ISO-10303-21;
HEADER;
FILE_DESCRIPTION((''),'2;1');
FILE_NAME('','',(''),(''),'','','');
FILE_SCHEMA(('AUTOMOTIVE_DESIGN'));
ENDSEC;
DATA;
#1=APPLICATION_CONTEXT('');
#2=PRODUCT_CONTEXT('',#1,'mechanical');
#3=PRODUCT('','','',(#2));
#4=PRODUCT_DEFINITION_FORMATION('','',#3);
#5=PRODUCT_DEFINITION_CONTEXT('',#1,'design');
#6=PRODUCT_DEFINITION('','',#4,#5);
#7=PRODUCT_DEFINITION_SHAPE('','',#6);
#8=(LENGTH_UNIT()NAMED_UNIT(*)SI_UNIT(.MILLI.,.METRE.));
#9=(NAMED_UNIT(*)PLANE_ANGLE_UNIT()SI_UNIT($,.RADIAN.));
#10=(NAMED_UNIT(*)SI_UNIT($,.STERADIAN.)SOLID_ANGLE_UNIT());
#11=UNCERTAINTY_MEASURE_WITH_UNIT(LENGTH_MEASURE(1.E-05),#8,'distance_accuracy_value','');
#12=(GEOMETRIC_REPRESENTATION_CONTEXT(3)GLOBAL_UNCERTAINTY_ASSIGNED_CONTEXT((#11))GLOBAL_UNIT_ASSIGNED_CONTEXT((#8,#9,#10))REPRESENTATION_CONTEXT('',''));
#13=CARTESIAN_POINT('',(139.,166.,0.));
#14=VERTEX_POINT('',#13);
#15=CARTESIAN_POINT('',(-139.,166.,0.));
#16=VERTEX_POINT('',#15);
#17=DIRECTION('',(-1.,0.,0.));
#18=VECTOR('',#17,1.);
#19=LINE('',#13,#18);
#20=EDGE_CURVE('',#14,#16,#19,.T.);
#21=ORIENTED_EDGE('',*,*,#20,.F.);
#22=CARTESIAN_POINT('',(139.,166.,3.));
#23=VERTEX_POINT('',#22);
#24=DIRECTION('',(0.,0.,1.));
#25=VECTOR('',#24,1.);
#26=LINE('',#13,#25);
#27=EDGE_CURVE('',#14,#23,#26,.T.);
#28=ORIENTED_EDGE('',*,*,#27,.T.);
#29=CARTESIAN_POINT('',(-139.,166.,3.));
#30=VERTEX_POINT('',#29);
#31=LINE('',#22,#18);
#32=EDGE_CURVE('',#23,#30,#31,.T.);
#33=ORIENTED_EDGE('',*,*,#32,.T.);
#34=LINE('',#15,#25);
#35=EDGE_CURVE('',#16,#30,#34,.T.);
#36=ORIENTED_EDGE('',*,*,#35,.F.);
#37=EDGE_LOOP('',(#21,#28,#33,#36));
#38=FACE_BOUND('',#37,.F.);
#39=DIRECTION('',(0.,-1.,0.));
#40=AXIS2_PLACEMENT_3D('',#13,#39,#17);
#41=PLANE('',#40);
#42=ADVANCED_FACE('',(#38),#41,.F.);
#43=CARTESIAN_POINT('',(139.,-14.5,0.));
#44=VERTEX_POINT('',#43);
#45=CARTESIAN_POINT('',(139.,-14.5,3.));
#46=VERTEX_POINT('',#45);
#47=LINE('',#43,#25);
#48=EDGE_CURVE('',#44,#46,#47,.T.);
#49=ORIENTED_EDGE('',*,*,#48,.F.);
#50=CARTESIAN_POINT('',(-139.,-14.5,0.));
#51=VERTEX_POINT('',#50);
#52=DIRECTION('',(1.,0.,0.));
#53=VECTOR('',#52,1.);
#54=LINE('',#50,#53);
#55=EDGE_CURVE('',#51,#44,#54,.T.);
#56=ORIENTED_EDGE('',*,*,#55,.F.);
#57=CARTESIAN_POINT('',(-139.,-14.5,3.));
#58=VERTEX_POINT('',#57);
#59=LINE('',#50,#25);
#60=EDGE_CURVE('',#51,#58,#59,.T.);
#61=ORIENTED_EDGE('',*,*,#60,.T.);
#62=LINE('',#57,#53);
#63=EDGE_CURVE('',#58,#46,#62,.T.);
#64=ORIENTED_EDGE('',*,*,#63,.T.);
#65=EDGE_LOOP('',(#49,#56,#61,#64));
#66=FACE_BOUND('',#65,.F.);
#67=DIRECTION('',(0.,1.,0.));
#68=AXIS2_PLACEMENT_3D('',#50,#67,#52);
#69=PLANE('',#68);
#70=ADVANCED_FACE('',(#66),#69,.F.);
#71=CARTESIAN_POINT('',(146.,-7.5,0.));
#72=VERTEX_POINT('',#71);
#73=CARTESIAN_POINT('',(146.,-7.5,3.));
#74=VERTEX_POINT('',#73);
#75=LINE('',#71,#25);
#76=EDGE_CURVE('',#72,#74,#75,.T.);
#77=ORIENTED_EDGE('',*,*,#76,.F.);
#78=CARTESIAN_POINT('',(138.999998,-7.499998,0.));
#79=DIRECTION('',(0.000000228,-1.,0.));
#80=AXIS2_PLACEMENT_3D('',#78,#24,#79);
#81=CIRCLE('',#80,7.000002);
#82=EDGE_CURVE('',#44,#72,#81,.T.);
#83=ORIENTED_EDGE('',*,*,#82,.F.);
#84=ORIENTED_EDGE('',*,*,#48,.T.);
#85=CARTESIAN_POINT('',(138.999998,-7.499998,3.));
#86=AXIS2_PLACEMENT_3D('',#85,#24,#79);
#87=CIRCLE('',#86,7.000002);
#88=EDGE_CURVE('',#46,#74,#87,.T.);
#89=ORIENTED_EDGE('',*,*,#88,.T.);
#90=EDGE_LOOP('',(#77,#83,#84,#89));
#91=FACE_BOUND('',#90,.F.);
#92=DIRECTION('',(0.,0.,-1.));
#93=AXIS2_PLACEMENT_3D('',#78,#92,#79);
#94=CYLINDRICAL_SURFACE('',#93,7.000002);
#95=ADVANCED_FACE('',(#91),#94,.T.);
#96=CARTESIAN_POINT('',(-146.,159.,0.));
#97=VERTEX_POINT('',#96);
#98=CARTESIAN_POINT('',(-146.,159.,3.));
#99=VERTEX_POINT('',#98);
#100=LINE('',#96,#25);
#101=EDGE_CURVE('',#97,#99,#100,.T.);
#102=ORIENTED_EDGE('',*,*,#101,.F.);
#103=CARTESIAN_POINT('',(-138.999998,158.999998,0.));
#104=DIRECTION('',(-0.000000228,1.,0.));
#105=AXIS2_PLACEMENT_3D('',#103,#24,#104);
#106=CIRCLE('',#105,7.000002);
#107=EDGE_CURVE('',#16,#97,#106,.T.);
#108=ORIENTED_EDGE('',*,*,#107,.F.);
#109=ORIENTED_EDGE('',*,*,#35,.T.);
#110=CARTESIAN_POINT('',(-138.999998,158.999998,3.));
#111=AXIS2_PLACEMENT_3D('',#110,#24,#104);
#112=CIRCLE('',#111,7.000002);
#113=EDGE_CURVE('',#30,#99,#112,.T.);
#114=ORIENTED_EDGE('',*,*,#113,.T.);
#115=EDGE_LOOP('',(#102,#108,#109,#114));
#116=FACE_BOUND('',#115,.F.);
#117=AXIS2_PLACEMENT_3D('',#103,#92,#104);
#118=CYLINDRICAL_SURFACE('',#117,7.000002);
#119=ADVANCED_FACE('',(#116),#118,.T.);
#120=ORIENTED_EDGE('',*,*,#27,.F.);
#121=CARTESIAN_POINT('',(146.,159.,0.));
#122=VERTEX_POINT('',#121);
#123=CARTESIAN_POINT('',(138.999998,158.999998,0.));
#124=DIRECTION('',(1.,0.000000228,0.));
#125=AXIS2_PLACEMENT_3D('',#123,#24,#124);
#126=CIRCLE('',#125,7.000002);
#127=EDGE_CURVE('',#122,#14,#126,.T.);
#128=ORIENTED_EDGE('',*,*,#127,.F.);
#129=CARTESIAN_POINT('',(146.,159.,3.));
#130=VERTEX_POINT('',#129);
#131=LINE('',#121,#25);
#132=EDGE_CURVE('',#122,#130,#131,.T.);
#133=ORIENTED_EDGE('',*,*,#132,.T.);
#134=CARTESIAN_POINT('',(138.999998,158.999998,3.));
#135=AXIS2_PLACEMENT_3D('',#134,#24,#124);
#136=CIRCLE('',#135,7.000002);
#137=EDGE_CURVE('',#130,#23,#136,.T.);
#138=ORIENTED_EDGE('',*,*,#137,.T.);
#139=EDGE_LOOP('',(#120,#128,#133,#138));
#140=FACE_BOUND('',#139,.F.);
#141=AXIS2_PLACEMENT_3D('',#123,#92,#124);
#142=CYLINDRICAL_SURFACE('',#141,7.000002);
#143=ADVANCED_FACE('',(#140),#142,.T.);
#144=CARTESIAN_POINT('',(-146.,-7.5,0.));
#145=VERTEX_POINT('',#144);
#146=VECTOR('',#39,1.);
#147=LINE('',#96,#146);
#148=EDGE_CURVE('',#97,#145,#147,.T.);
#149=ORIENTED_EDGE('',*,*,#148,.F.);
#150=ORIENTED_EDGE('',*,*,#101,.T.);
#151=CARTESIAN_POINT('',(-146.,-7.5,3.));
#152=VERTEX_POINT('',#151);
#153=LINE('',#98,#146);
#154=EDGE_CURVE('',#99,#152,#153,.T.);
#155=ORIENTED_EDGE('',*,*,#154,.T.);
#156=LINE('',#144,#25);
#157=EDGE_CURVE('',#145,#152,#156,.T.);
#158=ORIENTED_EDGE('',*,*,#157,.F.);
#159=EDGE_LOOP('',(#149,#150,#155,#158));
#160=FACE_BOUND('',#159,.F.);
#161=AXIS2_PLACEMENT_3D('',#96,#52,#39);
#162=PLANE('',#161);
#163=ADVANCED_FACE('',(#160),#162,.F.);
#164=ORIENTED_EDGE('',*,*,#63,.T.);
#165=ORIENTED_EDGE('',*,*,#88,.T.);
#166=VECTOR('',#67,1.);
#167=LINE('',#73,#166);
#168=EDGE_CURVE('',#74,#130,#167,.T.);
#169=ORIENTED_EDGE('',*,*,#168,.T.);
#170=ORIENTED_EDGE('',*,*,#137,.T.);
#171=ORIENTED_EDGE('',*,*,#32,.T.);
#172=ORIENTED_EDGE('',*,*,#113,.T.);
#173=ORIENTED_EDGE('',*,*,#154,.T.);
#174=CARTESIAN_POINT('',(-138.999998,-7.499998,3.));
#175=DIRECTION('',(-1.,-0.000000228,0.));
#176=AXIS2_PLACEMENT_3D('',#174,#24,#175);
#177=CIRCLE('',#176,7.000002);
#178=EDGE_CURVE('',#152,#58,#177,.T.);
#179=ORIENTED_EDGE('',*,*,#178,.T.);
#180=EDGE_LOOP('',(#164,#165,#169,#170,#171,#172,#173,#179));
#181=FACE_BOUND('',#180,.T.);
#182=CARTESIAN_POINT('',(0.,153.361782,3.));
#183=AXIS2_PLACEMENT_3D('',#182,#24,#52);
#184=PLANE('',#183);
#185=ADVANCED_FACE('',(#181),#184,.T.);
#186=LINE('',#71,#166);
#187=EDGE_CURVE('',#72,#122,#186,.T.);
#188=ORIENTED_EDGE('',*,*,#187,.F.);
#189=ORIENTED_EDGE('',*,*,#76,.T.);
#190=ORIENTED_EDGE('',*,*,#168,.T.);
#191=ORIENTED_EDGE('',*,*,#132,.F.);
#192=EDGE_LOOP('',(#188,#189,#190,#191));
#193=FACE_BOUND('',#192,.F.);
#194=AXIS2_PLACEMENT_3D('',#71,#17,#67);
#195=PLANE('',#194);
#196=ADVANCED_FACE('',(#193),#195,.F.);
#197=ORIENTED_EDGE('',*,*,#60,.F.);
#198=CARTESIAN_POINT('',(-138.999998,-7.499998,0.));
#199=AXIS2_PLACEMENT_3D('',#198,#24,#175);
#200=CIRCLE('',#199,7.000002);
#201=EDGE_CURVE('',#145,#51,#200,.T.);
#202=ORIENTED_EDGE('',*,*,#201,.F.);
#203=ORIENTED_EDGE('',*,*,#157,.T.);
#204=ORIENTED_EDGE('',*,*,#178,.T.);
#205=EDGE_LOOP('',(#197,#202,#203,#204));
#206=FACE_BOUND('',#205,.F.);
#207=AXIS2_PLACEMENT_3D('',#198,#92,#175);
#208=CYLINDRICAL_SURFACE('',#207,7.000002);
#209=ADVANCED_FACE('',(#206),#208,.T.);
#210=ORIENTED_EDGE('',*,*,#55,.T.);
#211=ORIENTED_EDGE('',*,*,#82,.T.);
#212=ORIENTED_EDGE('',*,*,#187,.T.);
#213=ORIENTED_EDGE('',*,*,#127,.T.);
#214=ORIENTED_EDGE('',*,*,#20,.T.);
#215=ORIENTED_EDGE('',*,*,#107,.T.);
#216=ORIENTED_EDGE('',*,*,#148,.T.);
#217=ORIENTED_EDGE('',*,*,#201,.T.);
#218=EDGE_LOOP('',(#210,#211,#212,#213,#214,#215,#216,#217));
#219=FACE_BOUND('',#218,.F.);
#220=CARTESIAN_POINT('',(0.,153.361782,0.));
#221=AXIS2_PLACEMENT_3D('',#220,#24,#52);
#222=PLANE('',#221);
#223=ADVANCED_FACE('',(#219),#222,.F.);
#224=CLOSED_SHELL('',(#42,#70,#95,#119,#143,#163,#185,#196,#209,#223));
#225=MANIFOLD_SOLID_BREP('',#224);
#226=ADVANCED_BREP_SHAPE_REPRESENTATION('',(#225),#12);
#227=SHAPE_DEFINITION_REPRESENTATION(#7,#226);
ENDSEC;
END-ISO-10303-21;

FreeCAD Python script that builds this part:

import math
import FreeCAD as App
import Part
import Sketcher

V = App.Vector
Q = App.Units.Quantity

doc = App.newDocument("Part")
body = doc.addObject("PartDesign::Body", "Body")

# Sketch on XY plane
sketch1 = doc.addObject("Sketcher::SketchObject", "Sketch")
body.addObject(sketch1)
sketch1.AttachmentSupport = (doc.XY_Plane, [""])
sketch1.MapMode = "FlatFace"
sketch1.addGeometry([
    Part.LineSegment(V(-146, 159, 0), V(-146, -7.5, 0)),  # 0
    Part.ArcOfCircle(Part.Circle(V(-138.999998, -7.499998, 0), V(0, 0, 1), 7.000002), math.radians(-179.999987), math.radians(-90.000013)),  # 1
    Part.LineSegment(V(-139, -14.5, 0), V(139, -14.5, 0)),  # 2
    Part.ArcOfCircle(Part.Circle(V(138.999998, -7.499998, 0), V(0, 0, 1), 7.000002), math.radians(-89.999987), math.radians(-0.000013)),  # 3
    Part.LineSegment(V(146, -7.5, 0), V(146, 159, 0)),  # 4
    Part.ArcOfCircle(Part.Circle(V(138.999998, 158.999998, 0), V(0, 0, 1), 7.000002), math.radians(0.000013), math.radians(89.999987)),  # 5
    Part.LineSegment(V(139, 166, 0), V(-139, 166, 0)),  # 6
    Part.ArcOfCircle(Part.Circle(V(-138.999998, 158.999998, 0), V(0, 0, 1), 7.000002), math.radians(90.000013), math.radians(179.999987)),  # 7
], False)
sketch1.addConstraint([
    Sketcher.Constraint("Tangent", 0, 2, 1, 1),
    Sketcher.Constraint("Tangent", 1, 2, 2, 1),
    Sketcher.Constraint("Tangent", 2, 2, 3, 1),
    Sketcher.Constraint("Tangent", 3, 2, 4, 1),
    Sketcher.Constraint("Tangent", 4, 2, 5, 1),
    Sketcher.Constraint("Tangent", 5, 2, 6, 1),
    Sketcher.Constraint("Tangent", 6, 2, 7, 1),
    Sketcher.Constraint("Tangent", 7, 2, 0, 1),
    Sketcher.Constraint("Vertical", 0),
    Sketcher.Constraint("Horizontal", 2),
    Sketcher.Constraint("Vertical", 4),
    Sketcher.Constraint("Horizontal", 6),
    Sketcher.Constraint("Equal", 1, 3),
    Sketcher.Constraint("Equal", 3, 5),
    Sketcher.Constraint("Equal", 5, 7),
    Sketcher.Constraint("Radius", 1, Q("7.000002 mm")),
    Sketcher.Constraint("DistanceX", 2, 1, 2, 2, Q("278 mm")),
    Sketcher.Constraint("DistanceY", 0, 2, 0, 1, Q("166.5 mm")),
    Sketcher.Constraint("DistanceX", 1, 3, -1, 1, Q("138.999998 mm")),
    Sketcher.Constraint("DistanceY", -1, 1, 5, 3, Q("158.999998 mm")),
])
pad1 = doc.addObject("PartDesign::Pad", "Pad")
body.addObject(pad1)
pad1.Profile = sketch1
pad1.Length = 3

doc.recompute()
